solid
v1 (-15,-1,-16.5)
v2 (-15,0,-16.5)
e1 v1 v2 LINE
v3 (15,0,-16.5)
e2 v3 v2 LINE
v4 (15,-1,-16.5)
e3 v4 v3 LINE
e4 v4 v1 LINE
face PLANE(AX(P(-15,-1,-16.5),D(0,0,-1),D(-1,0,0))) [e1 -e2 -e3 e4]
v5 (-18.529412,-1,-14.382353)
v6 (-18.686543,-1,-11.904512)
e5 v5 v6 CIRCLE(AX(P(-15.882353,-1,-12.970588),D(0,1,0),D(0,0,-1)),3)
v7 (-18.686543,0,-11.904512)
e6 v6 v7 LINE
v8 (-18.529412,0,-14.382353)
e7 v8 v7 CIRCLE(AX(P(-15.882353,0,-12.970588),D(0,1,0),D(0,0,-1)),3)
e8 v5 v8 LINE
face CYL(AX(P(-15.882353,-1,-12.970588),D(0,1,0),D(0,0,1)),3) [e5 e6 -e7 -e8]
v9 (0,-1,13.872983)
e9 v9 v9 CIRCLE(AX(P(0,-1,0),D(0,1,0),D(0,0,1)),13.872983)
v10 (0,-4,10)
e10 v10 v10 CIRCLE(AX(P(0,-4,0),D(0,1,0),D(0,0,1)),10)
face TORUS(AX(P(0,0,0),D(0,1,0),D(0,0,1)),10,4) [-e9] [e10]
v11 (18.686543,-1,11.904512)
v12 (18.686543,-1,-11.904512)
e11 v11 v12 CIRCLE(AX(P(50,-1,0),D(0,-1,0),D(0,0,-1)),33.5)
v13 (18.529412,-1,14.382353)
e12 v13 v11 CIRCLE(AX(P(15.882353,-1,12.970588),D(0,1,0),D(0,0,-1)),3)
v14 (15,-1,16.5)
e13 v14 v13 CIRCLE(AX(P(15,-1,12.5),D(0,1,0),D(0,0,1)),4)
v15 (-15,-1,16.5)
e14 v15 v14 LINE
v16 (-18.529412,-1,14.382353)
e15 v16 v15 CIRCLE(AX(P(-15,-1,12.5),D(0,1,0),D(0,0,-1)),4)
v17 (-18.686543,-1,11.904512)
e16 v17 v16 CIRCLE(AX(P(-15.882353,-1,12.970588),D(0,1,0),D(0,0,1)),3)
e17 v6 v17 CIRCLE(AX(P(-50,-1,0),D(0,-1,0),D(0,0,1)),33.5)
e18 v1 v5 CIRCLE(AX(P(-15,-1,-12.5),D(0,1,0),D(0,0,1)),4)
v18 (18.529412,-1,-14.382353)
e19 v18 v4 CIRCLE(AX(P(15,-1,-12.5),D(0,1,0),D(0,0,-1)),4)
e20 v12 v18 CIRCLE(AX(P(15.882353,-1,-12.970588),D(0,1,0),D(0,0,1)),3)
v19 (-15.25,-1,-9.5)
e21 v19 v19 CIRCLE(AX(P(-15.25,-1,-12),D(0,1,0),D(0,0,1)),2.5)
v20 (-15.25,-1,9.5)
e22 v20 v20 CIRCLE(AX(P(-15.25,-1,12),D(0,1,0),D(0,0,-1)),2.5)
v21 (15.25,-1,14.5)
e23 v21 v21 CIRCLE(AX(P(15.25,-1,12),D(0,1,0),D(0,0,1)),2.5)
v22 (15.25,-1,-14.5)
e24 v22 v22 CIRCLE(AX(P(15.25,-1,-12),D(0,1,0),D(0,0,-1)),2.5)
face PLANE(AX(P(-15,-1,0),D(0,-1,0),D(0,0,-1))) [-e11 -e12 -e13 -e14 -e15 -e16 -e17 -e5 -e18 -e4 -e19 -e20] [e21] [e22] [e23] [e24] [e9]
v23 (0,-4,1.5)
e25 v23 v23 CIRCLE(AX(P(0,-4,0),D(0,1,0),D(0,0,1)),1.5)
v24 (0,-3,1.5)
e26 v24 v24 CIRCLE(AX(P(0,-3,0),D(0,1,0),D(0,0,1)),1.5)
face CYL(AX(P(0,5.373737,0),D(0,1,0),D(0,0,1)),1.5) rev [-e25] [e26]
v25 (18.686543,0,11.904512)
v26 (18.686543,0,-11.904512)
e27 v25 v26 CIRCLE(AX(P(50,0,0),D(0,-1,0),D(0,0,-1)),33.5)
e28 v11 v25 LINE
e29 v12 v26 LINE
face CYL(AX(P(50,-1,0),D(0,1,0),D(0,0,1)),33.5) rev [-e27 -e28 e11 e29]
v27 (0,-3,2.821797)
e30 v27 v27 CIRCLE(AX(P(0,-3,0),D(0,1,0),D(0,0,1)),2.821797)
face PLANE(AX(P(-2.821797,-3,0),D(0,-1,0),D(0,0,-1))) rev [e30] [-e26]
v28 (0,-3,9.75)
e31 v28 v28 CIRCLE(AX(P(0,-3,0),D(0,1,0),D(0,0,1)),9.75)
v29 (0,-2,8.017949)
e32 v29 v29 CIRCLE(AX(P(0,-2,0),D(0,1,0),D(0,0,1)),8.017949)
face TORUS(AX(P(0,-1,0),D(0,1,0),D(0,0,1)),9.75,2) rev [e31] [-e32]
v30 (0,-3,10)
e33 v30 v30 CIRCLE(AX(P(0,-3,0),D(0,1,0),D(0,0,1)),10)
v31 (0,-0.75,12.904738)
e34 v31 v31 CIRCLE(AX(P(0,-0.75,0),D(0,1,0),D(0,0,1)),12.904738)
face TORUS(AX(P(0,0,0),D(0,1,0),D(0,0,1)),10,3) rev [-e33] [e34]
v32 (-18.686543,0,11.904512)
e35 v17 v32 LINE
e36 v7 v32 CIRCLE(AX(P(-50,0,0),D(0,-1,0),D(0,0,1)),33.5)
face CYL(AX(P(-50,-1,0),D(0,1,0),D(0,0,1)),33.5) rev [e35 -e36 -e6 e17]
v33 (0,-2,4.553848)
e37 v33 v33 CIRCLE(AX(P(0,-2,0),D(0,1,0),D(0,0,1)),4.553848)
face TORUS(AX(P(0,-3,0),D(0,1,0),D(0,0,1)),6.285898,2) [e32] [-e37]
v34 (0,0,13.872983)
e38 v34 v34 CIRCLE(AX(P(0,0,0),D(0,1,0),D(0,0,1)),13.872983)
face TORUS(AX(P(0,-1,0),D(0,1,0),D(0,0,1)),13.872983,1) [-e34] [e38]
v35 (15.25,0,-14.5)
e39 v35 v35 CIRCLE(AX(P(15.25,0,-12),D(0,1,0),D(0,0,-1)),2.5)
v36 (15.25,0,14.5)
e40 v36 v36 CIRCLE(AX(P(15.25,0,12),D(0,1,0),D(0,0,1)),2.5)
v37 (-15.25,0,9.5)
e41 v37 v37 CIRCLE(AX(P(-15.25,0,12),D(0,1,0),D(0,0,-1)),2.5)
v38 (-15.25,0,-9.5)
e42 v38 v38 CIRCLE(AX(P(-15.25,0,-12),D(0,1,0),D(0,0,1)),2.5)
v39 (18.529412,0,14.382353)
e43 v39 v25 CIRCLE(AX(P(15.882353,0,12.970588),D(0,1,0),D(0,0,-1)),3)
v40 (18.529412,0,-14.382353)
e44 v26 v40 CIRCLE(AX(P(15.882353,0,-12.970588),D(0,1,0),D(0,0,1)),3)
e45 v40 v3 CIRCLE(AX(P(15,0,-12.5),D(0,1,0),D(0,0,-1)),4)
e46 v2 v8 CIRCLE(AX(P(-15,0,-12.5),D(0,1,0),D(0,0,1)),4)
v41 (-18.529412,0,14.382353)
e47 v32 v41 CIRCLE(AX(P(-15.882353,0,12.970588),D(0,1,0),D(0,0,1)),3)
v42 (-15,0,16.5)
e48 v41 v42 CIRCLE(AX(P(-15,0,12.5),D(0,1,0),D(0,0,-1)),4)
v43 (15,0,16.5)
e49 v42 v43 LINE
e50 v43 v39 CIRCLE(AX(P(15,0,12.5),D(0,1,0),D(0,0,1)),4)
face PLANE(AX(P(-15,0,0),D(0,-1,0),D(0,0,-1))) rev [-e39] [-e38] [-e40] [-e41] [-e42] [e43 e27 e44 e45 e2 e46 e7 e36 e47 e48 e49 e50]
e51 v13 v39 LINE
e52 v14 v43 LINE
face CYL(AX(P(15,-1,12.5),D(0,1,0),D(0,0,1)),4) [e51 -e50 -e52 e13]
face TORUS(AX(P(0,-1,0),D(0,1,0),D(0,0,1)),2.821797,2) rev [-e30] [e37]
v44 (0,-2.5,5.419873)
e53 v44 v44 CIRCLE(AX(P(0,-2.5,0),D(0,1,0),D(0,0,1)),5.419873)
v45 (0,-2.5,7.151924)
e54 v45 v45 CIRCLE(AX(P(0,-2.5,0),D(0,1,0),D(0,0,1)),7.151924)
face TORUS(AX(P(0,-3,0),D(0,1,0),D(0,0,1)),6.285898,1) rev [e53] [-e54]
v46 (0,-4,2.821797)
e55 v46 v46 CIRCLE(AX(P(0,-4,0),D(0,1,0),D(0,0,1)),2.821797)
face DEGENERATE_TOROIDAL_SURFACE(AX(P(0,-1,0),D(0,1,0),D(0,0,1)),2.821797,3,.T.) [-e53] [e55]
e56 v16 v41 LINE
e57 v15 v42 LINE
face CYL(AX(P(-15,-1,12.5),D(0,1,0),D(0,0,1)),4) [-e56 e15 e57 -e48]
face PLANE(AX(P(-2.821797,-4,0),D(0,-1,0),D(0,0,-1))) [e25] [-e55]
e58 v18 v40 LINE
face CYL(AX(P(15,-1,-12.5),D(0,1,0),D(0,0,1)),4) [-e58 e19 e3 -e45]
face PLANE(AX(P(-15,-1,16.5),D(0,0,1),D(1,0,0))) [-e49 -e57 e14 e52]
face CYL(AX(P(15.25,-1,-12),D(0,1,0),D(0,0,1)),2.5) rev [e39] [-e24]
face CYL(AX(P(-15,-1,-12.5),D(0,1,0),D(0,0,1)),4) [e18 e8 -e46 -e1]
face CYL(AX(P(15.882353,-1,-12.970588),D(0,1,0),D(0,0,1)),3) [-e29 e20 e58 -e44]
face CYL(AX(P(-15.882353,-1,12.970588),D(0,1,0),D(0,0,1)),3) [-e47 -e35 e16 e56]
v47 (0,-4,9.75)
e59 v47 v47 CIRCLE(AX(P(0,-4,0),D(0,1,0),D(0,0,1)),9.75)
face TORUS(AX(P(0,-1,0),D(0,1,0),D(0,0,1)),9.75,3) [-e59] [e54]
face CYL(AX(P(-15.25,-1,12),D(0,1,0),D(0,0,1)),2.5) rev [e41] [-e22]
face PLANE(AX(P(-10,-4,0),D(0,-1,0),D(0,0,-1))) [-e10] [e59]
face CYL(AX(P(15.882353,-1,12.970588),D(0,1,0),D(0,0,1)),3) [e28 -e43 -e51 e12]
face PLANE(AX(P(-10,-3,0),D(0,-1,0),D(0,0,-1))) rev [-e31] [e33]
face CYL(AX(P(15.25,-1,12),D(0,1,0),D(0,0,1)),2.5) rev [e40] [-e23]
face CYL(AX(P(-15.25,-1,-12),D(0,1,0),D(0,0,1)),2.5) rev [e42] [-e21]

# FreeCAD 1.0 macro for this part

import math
import FreeCAD as App
import Part
import Sketcher

doc = App.newDocument("Part")
body = doc.addObject("PartDesign::Body", "Body")

# Sketch on XY plane
sketch1 = body.newObject("Sketcher::SketchObject", "Sketch")
sketch1.AttachmentSupport = (doc.getObject("XY_Plane"), [""])
sketch1.MapMode = "FlatFace"
sketch1.addGeometry([
    Part.LineSegment(App.Vector(-13.87, 0, 0), App.Vector(-15, 0, 0)),  # 0
    Part.LineSegment(App.Vector(-15, 0, 0), App.Vector(-15, -1, 0)),  # 1
    Part.LineSegment(App.Vector(-15, -1, 0), App.Vector(-13.87, -1, 0)),  # 2
    Part.ArcOfCircle(Part.Circle(App.Vector(-10, 0, 0), App.Vector(0, 0, 1), 4), math.radians(-166), math.radians(-90)),  # 3
    Part.LineSegment(App.Vector(-10, -4, 0), App.Vector(-9.75, -4, 0)),  # 4
    Part.ArcOfCircle(Part.Circle(App.Vector(-9.75, -1, 0), App.Vector(0, 0, 1), 3), math.radians(-90), math.radians(-30)),  # 5
    Part.ArcOfCircle(Part.Circle(App.Vector(-6.29, -3, 0), App.Vector(0, 0, 1), 1), math.radians(30), math.radians(150)),  # 6
    Part.ArcOfCircle(Part.Circle(App.Vector(-2.82, -1, 0), App.Vector(0, 0, 1), 3), math.radians(-150), math.radians(-90)),  # 7
    Part.LineSegment(App.Vector(-2.82, -4, 0), App.Vector(-1.5, -4, 0)),  # 8
    Part.LineSegment(App.Vector(-1.5, -4, 0), App.Vector(-1.5, -3, 0)),  # 9
    Part.LineSegment(App.Vector(-1.5, -3, 0), App.Vector(-2.82, -3, 0)),  # 10
    Part.ArcOfCircle(Part.Circle(App.Vector(-2.82, -1, 0), App.Vector(0, 0, 1), 2), math.radians(-150), math.radians(-90)),  # 11
    Part.ArcOfCircle(Part.Circle(App.Vector(-6.29, -3, 0), App.Vector(0, 0, 1), 2), math.radians(30), math.radians(150)),  # 12
    Part.ArcOfCircle(Part.Circle(App.Vector(-9.75, -1, 0), App.Vector(0, 0, 1), 2), math.radians(-90), math.radians(-30)),  # 13
    Part.LineSegment(App.Vector(-9.75, -3, 0), App.Vector(-10, -3, 0)),  # 14
    Part.ArcOfCircle(Part.Circle(App.Vector(-10, 0, 0), App.Vector(0, 0, 1), 3), math.radians(-166), math.radians(-90)),  # 15
    Part.ArcOfCircle(Part.Circle(App.Vector(-13.87, -1, 0), App.Vector(0, 0, 1), 1), math.radians(14), math.radians(90)),  # 16
], False)
sketch1.addConstraint([
    Sketcher.Constraint("Coincident", 0, 2, 1, 1),
    Sketcher.Constraint("Coincident", 1, 2, 2, 1),
    Sketcher.Constraint("Coincident", 2, 2, 3, 1),
    Sketcher.Constraint("Tangent", 3, 2, 4, 1),
    Sketcher.Constraint("Tangent", 4, 2, 5, 1),
    Sketcher.Constraint("Tangent", 5, 2, 6, 2),
    Sketcher.Constraint("Tangent", 6, 1, 7, 1),
    Sketcher.Constraint("Tangent", 7, 2, 8, 1),
    Sketcher.Constraint("Coincident", 8, 2, 9, 1),
    Sketcher.Constraint("Coincident", 9, 2, 10, 1),
    Sketcher.Constraint("Tangent", 10, 2, 11, 2),
    Sketcher.Constraint("Tangent", 11, 1, 12, 1),
    Sketcher.Constraint("Tangent", 12, 2, 13, 2),
    Sketcher.Constraint("Tangent", 13, 1, 14, 1),
    Sketcher.Constraint("Tangent", 14, 2, 15, 2),
    Sketcher.Constraint("Tangent", 15, 1, 16, 1),
    Sketcher.Constraint("Tangent", 16, 2, 0, 1),
    Sketcher.Constraint("Horizontal", 0),
    Sketcher.Constraint("Vertical", 1),
    Sketcher.Constraint("Horizontal", 2),
    Sketcher.Constraint("Horizontal", 4),
    Sketcher.Constraint("Horizontal", 8),
    Sketcher.Constraint("Vertical", 9),
    Sketcher.Constraint("Horizontal", 10),
    Sketcher.Constraint("Horizontal", 14),
    Sketcher.Constraint("Coincident", 11, 3, 7, 3),
    Sketcher.Constraint("Coincident", 12, 3, 6, 3),
    Sketcher.Constraint("Coincident", 13, 3, 5, 3),
    Sketcher.Constraint("Coincident", 15, 3, 3, 3),
    Sketcher.Constraint("Coincident", 2, 2, 16, 3),
    Sketcher.Constraint("Equal", 5, 7),
    Sketcher.Constraint("Equal", 11, 12),
    Sketcher.Constraint("Equal", 7, 15),
    Sketcher.Constraint("Equal", 6, 16),
    Sketcher.Constraint("PointOnObject", 3, 3, -1),
    Sketcher.Constraint("PointOnObject", 0, 2, -1),
    Sketcher.Constraint("Horizontal", 5, 3, 7, 3),
    Sketcher.Constraint("Horizontal", 12, 3, 9, 2),
    Sketcher.Constraint("Radius", 3, 4.0),
    Sketcher.Constraint("DistanceX", 3, 3, -1, 1, 10.0),
    Sketcher.Constraint("DistanceX", 0, 2, -1, 1, 15.0),
    Sketcher.Constraint("DistanceX", 4, 1, 4, 2, 0.25),
    Sketcher.Constraint("DistanceX", 8, 2, -1, 1, 1.5),
])
revolution = body.newObject("PartDesign::Revolution", "Revolution")
revolution.Profile = sketch1
revolution.ReferenceAxis = (sketch1, ["V_Axis"])
revolution.Angle = 360

# Sketch on XZ plane
sketch2 = body.newObject("Sketcher::SketchObject", "Sketch001")
sketch2.AttachmentSupport = (doc.getObject("XZ_Plane"), [""])
sketch2.MapMode = "FlatFace"
sketch2.addGeometry([
    Part.LineSegment(App.Vector(15, -16.5, 0), App.Vector(-15, -16.5, 0)),  # 0
    Part.ArcOfCircle(Part.Circle(App.Vector(-15, -12.5, 0), App.Vector(0, 0, 1), 4), math.radians(-152), math.radians(-90)),  # 1
    Part.ArcOfCircle(Part.Circle(App.Vector(-15.9, -13, 0), App.Vector(0, 0, 1), 3), math.radians(159), math.radians(208)),  # 2
    Part.ArcOfCircle(Part.Circle(App.Vector(-50, 0, 0), App.Vector(0, 0, 1), 33.5), math.radians(-21), math.radians(21)),  # 3
    Part.ArcOfCircle(Part.Circle(App.Vector(-15.9, 13, 0), App.Vector(0, 0, 1), 3), math.radians(152), math.radians(201)),  # 4
    Part.ArcOfCircle(Part.Circle(App.Vector(-15, 12.5, 0), App.Vector(0, 0, 1), 4), math.radians(90), math.radians(152)),  # 5
    Part.LineSegment(App.Vector(-15, 16.5, 0), App.Vector(15, 16.5, 0)),  # 6
    Part.ArcOfCircle(Part.Circle(App.Vector(15, 12.5, 0), App.Vector(0, 0, 1), 4), math.radians(28), math.radians(90)),  # 7
    Part.ArcOfCircle(Part.Circle(App.Vector(15.9, 13, 0), App.Vector(0, 0, 1), 3), math.radians(-21), math.radians(28)),  # 8
    Part.ArcOfCircle(Part.Circle(App.Vector(50, 0, 0), App.Vector(0, 0, 1), 33.5), math.radians(159), math.radians(201)),  # 9
    Part.ArcOfCircle(Part.Circle(App.Vector(15.9, -13, 0), App.Vector(0, 0, 1), 3), math.radians(-28), math.radians(21)),  # 10
    Part.ArcOfCircle(Part.Circle(App.Vector(15, -12.5, 0), App.Vector(0, 0, 1), 4), math.radians(-90), math.radians(-28)),  # 11
    Part.Circle(App.Vector(15.2, 12, 0), App.Vector(0, 0, 1), 2.5),  # 12
    Part.Circle(App.Vector(-15.2, 12, 0), App.Vector(0, 0, 1), 2.5),  # 13
    Part.Circle(App.Vector(15.2, -12, 0), App.Vector(0, 0, 1), 2.5),  # 14
    Part.Circle(App.Vector(0, 0, 0), App.Vector(0, 0, 1), 15),  # 15
    Part.Circle(App.Vector(-15.2, -12, 0), App.Vector(0, 0, 1), 2.5),  # 16
], False)
sketch2.addConstraint([
    Sketcher.Constraint("Tangent", 0, 2, 1, 2),
    Sketcher.Constraint("Tangent", 1, 1, 2, 2),
    Sketcher.Constraint("Tangent", 2, 1, 3, 1),
    Sketcher.Constraint("Tangent", 3, 2, 4, 2),
    Sketcher.Constraint("Tangent", 4, 1, 5, 2),
    Sketcher.Constraint("Tangent", 5, 1, 6, 1),
    Sketcher.Constraint("Tangent", 6, 2, 7, 2),
    Sketcher.Constraint("Tangent", 7, 1, 8, 2),
    Sketcher.Constraint("Tangent", 8, 1, 9, 1),
    Sketcher.Constraint("Tangent", 9, 2, 10, 2),
    Sketcher.Constraint("Tangent", 10, 1, 11, 2),
    Sketcher.Constraint("Tangent", 11, 1, 0, 1),
    Sketcher.Constraint("Horizontal", 0),
    Sketcher.Constraint("Horizontal", 6),
    Sketcher.Constraint("Coincident", 15, 3, -1, 1),
    Sketcher.Constraint("Equal", 2, 4),
    Sketcher.Constraint("Equal", 1, 5),
    Sketcher.Constraint("Equal", 5, 7),
    Sketcher.Constraint("Equal", 4, 8),
    Sketcher.Constraint("Equal", 3, 9),
    Sketcher.Constraint("Equal", 8, 10),
    Sketcher.Constraint("Equal", 7, 11),
    Sketcher.Constraint("Equal", 12, 13),
    Sketcher.Constraint("Equal", 13, 14),
    Sketcher.Constraint("Equal", 14, 16),
    Sketcher.Constraint("Symmetric", 1, 3, 7, 3, -1, 1),
    Sketcher.Constraint("Symmetric", 3, 3, 9, 3, -1, 1),
    Sketcher.Constraint("Symmetric", 13, 3, 14, 3, -1, 1),
    Sketcher.Constraint("Symmetric", 12, 3, 16, 3, -1, 1),
    Sketcher.Constraint("Symmetric", 4, 3, 8, 3, -2),
    Sketcher.Constraint("Symmetric", 12, 3, 13, 3, -2),
    Sketcher.Constraint("Horizontal", 2, 3, 10, 3),
    Sketcher.Constraint("Diameter", 12, 5.0),
    Sketcher.Constraint("Diameter", 15, 30.0),
    Sketcher.Constraint("Radius", 1, 4.0),
    Sketcher.Constraint("Radius", 2, 3.0),
    Sketcher.Constraint("Radius", 3, 33.5),
    Sketcher.Constraint("DistanceX", 0, 2, 0, 1, 30.0),
    Sketcher.Constraint("DistanceX", 3, 3, -1, 1, 50.0),
    Sketcher.Constraint("DistanceY", -1, 1, 12, 3, 12.0),
    Sketcher.Constraint("DistanceY", 1, 3, 5, 3, 25.0),
    Sketcher.Constraint("DistanceX", -1, 1, 12, 3, 15.25),
])
pad1 = body.newObject("PartDesign::Pad", "Pad")
pad1.Profile = sketch2
pad1.Length = 1

doc.recompute()
